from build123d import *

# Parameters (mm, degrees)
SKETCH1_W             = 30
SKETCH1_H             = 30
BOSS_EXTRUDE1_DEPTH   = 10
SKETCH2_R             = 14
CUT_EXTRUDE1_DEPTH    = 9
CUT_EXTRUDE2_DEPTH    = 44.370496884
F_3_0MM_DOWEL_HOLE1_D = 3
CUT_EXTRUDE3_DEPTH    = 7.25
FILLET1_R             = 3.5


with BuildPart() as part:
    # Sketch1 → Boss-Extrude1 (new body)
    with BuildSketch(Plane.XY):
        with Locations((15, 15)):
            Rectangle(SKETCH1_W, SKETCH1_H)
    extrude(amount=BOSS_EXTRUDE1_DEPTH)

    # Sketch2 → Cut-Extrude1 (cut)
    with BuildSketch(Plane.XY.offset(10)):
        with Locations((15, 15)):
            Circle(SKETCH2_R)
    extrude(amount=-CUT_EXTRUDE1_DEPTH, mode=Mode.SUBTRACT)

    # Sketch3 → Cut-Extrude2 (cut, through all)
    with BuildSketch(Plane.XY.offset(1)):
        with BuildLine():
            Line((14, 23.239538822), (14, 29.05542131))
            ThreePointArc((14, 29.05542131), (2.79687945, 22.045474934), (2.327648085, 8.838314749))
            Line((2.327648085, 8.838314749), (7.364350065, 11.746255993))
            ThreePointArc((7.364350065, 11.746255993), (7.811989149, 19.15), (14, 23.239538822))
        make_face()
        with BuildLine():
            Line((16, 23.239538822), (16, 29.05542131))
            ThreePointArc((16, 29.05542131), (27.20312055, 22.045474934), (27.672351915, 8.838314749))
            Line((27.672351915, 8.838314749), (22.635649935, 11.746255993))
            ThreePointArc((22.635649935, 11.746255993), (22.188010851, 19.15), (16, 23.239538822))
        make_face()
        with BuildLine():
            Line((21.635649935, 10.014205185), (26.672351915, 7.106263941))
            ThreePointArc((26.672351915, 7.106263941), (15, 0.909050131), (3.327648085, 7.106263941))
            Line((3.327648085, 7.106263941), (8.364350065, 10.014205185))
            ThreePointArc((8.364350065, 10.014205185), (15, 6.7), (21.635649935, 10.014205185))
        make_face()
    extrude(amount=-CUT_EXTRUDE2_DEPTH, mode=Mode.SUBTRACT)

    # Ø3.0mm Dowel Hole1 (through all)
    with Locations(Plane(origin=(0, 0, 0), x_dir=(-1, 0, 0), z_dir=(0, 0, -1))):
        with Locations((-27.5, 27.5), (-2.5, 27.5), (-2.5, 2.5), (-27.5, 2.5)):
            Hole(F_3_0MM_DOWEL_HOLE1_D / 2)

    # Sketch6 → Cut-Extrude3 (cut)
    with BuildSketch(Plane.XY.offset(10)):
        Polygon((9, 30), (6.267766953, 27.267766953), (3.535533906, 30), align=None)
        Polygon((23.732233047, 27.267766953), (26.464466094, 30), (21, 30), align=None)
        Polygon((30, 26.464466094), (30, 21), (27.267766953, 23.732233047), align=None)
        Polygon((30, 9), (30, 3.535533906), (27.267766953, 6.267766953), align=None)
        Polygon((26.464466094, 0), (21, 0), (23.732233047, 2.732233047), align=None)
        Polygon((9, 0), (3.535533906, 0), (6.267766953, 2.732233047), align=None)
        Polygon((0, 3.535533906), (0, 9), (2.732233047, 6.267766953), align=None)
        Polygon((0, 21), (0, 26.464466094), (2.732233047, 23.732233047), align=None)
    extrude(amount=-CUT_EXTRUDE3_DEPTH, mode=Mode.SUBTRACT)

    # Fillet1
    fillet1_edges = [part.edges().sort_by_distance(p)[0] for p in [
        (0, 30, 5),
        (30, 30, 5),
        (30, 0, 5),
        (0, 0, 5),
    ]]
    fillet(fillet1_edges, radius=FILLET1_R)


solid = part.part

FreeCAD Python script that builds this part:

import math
import FreeCAD as App
import Part
import Sketcher

V = App.Vector
Q = App.Units.Quantity


def edges_at(feature, points):
    """Names of the edges that pass closest to the given points."""
    edges = feature.Shape.Edges
    near = lambda p: min(range(len(edges)), key=lambda i: edges[i].distToShape(Part.Vertex(*p))[0])
    return sorted({f"Edge{near(p) + 1}" for p in points})

doc = App.newDocument("Part")
body = doc.addObject("PartDesign::Body", "Body")

# Sketch on XY plane
sketch1 = doc.addObject("Sketcher::SketchObject", "Sketch")
body.addObject(sketch1)
sketch1.AttachmentSupport = (doc.XY_Plane, [""])
sketch1.MapMode = "FlatFace"
sketch1.addGeometry([
    Part.LineSegment(V(0, 30, 0), V(0, 0, 0)),
    Part.LineSegment(V(0, 0, 0), V(30, 0, 0)),
    Part.LineSegment(V(30, 0, 0), V(30, 30, 0)),
    Part.LineSegment(V(30, 30, 0), V(0, 30, 0)),
], False)
sketch1.addConstraint([
    Sketcher.Constraint("Coincident", 0, 2, 1, 1),
    Sketcher.Constraint("Coincident", 1, 2, 2, 1),
    Sketcher.Constraint("Coincident", 2, 2, 3, 1),
    Sketcher.Constraint("Coincident", 3, 2, 0, 1),
    Sketcher.Constraint("Vertical", 0),
    Sketcher.Constraint("Horizontal", 1),
    Sketcher.Constraint("Vertical", 2),
    Sketcher.Constraint("Horizontal", 3),
    Sketcher.Constraint("Coincident", 0, 2, -1, 1),
    Sketcher.Constraint("Equal", 3, 0),
    Sketcher.Constraint("DistanceX", 1, 1, 1, 2, Q("30 mm")),
])
pad1 = doc.addObject("PartDesign::Pad", "Pad")
body.addObject(pad1)
pad1.Profile = sketch1
pad1.Length = 10

# Sketch on XY plane
sketch2 = doc.addObject("Sketcher::SketchObject", "Sketch001")
body.addObject(sketch2)
sketch2.AttachmentSupport = (doc.XY_Plane, [""])
sketch2.MapMode = "FlatFace"
sketch2.AttachmentOffset = App.Placement(V(0, 0, 10), App.Rotation())
sketch2.addGeometry(Part.Circle(V(15, 15, 0), V(0, 0, 1), 14), False)
sketch2.addConstraint([
    Sketcher.Constraint("Diameter", 0, Q("28 mm")),
    Sketcher.Constraint("DistanceX", -1, 1, 0, 3, Q("15 mm")),
    Sketcher.Constraint("DistanceY", -1, 1, 0, 3, Q("15 mm")),
])
pocket1 = doc.addObject("PartDesign::Pocket", "Pocket")
body.addObject(pocket1)
pocket1.Profile = sketch2
pocket1.Length = 9

# Sketch on XY plane
sketch3 = doc.addObject("Sketcher::SketchObject", "Sketch002")
body.addObject(sketch3)
sketch3.AttachmentSupport = (doc.XY_Plane, [""])
sketch3.MapMode = "FlatFace"
sketch3.AttachmentOffset = App.Placement(V(0, 0, 1), App.Rotation())
sketch3.addGeometry([
    Part.LineSegment(V(14, 23, 0), V(14, 29, 0)),  # 0
    Part.ArcOfCircle(Part.Circle(V(15, 15, 0), V(0, 0, 1), 14), math.radians(94), math.radians(206)),  # 1
    Part.LineSegment(V(2, 9, 0), V(7, 12, 0)),  # 2
    Part.ArcOfCircle(Part.Circle(V(15, 15, 0), V(0, 0, 1), 8), math.radians(97), math.radians(203)),  # 3
    Part.LineSegment(V(16, 29, 0), V(16, 23, 0)),  # 4
    Part.ArcOfCircle(Part.Circle(V(15, 15, 0), V(0, 0, 1), 8), math.radians(-23), math.radians(83)),  # 5
    Part.LineSegment(V(23, 12, 0), V(28, 9, 0)),  # 6
    Part.ArcOfCircle(Part.Circle(V(15, 15, 0), V(0, 0, 1), 14), math.radians(-26), math.radians(86)),  # 7
    Part.LineSegment(V(27, 7, 0), V(22, 10, 0)),  # 8
    Part.ArcOfCircle(Part.Circle(V(15, 15, 0), V(0, 0, 1), 8), math.radians(-143), math.radians(-37)),  # 9
    Part.LineSegment(V(8, 10, 0), V(3, 7, 0)),  # 10
    Part.ArcOfCircle(Part.Circle(V(15, 15, 0), V(0, 0, 1), 14), math.radians(-146), math.radians(-34)),  # 11
], False)
sketch3.addConstraint([
    Sketcher.Constraint("Coincident", 0, 2, 1, 1),
    Sketcher.Constraint("Coincident", 1, 2, 2, 1),
    Sketcher.Constraint("Coincident", 2, 2, 3, 2),
    Sketcher.Constraint("Coincident", 3, 1, 0, 1),
    Sketcher.Constraint("Coincident", 4, 2, 5, 2),
    Sketcher.Constraint("Coincident", 5, 1, 6, 1),
    Sketcher.Constraint("Coincident", 6, 2, 7, 1),
    Sketcher.Constraint("Coincident", 7, 2, 4, 1),
    Sketcher.Constraint("Coincident", 8, 2, 9, 2),
    Sketcher.Constraint("Coincident", 9, 1, 10, 1),
    Sketcher.Constraint("Coincident", 10, 2, 11, 1),
    Sketcher.Constraint("Coincident", 11, 2, 8, 1),
    Sketcher.Constraint("Vertical", 0),
    Sketcher.Constraint("Vertical", 4),
    Sketcher.Constraint("Coincident", 3, 3, 1, 3),
    Sketcher.Constraint("Coincident", 5, 3, 1, 3),
    Sketcher.Constraint("Coincident", 7, 3, 1, 3),
    Sketcher.Constraint("Coincident", 9, 3, 1, 3),
    Sketcher.Constraint("Coincident", 11, 3, 1, 3),
    Sketcher.Constraint("Equal", 3, 5),
    Sketcher.Constraint("Equal", 1, 7),
    Sketcher.Constraint("Equal", 5, 9),
    Sketcher.Constraint("Equal", 7, 11),
    Sketcher.Constraint("Parallel", 6, 8),
    Sketcher.Constraint("Parallel", 2, 10),
    Sketcher.Constraint("Horizontal", 3, 1, 4, 2),
    Sketcher.Constraint("Horizontal", 2, 2, 5, 1),
    Sketcher.Constraint("Horizontal", 1, 2, 6, 2),
    Sketcher.Constraint("Horizontal", 8, 2, 9, 1),
    Sketcher.Constraint("Equal", 6, 8),
    Sketcher.Constraint("Radius", 3, Q("8.3 mm")),
    Sketcher.Constraint("Angle", 2, Q("30 deg")),
    Sketcher.Constraint("DistanceX", -1, 1, 1, 3, Q("15 mm")),
    Sketcher.Constraint("DistanceY", -1, 1, 1, 3, Q("15 mm")),
    Sketcher.Constraint("DistanceX", -1, 1, 0, 2, Q("14 mm")),
    Sketcher.Constraint("DistanceX", 8, 2, 5, 1, Q("1 mm")),
    Sketcher.Constraint("Radius", 1, Q("14.09095 mm")),
])
pocket2 = doc.addObject("PartDesign::Pocket", "Pocket001")
body.addObject(pocket2)
pocket2.Profile = sketch3
pocket2.Type = "ThroughAll"

# Sketch on XY plane
sketch4 = doc.addObject("Sketcher::SketchObject", "Sketch003")
body.addObject(sketch4)
sketch4.AttachmentSupport = (doc.XY_Plane, [""])
sketch4.MapMode = "FlatFace"
sketch4.addGeometry([
    Part.Circle(V(27.5, 27.5, 0), V(0, 0, 1), 1.5),
    Part.Circle(V(2.5, 27.5, 0), V(0, 0, 1), 1.5),
    Part.Circle(V(2.5, 2.5, 0), V(0, 0, 1), 1.5),
    Part.Circle(V(27.5, 2.5, 0), V(0, 0, 1), 1.5),
], False)
sketch4.addConstraint([
    Sketcher.Constraint("Equal", 0, 1),
    Sketcher.Constraint("Equal", 1, 2),
    Sketcher.Constraint("Equal", 2, 3),
    Sketcher.Constraint("Horizontal", 0, 3, 1, 3),
    Sketcher.Constraint("Horizontal", 2, 3, 3, 3),
    Sketcher.Constraint("Vertical", 1, 3, 2, 3),
    Sketcher.Constraint("Vertical", 0, 3, 3, 3),
    Sketcher.Constraint("Diameter", 0, Q("3 mm")),
    Sketcher.Constraint("DistanceX", 1, 3, 0, 3, Q("25 mm")),
    Sketcher.Constraint("DistanceY", 2, 3, 1, 3, Q("25 mm")),
    Sketcher.Constraint("DistanceX", -1, 1, 0, 3, Q("27.5 mm")),
    Sketcher.Constraint("DistanceY", -1, 1, 0, 3, Q("27.5 mm")),
])
doc.recompute()
hole = doc.addObject("PartDesign::Hole", "Hole")
body.addObject(hole)
hole.Profile = sketch4
hole.ThreadType = "None"
hole.Diameter = 3
hole.DepthType = "ThroughAll"
hole.Reversed = True

# Sketch on XY plane
sketch5 = doc.addObject("Sketcher::SketchObject", "Sketch004")
body.addObject(sketch5)
sketch5.AttachmentSupport = (doc.XY_Plane, [""])
sketch5.MapMode = "FlatFace"
sketch5.AttachmentOffset = App.Placement(V(0, 0, 10), App.Rotation())
sketch5.addGeometry([
    Part.LineSegment(V(6.3, 27.3, 0), V(9, 30, 0)),  # 0
    Part.LineSegment(V(9, 30, 0), V(3.5, 30, 0)),  # 1
    Part.LineSegment(V(3.5, 30, 0), V(6.3, 27.3, 0)),  # 2
    Part.LineSegment(V(23.7, 27.3, 0), V(26.5, 30, 0)),  # 3
    Part.LineSegment(V(26.5, 30, 0), V(21, 30, 0)),  # 4
    Part.LineSegment(V(21, 30, 0), V(23.7, 27.3, 0)),  # 5
    Part.LineSegment(V(30, 21, 0), V(30, 26.5, 0)),  # 6
    Part.LineSegment(V(30, 26.5, 0), V(27.3, 23.7, 0)),  # 7
    Part.LineSegment(V(27.3, 23.7, 0), V(30, 21, 0)),  # 8
    Part.LineSegment(V(30, 3.5, 0), V(30, 9, 0)),  # 9
    Part.LineSegment(V(30, 9, 0), V(27.3, 6.3, 0)),  # 10
    Part.LineSegment(V(27.3, 6.3, 0), V(30, 3.5, 0)),  # 11
    Part.LineSegment(V(21, 0, 0), V(26.5, 0, 0)),  # 12
    Part.LineSegment(V(26.5, 0, 0), V(23.7, 2.7, 0)),  # 13
    Part.LineSegment(V(23.7, 2.7, 0), V(21, 0, 0)),  # 14
    Part.LineSegment(V(3.5, 0, 0), V(9, 0, 0)),  # 15
    Part.LineSegment(V(9, 0, 0), V(6.3, 2.7, 0)),  # 16
    Part.LineSegment(V(6.3, 2.7, 0), V(3.5, 0, 0)),  # 17
    Part.LineSegment(V(0, 9, 0), V(0, 3.5, 0)),  # 18
    Part.LineSegment(V(0, 3.5, 0), V(2.7, 6.3, 0)),  # 19
    Part.LineSegment(V(2.7, 6.3, 0), V(0, 9, 0)),  # 20
    Part.LineSegment(V(0, 26.5, 0), V(0, 21, 0)),  # 21
    Part.LineSegment(V(0, 21, 0), V(2.7, 23.7, 0)),  # 22
    Part.LineSegment(V(2.7, 23.7, 0), V(0, 26.5, 0)),  # 23
], False)
sketch5.addConstraint([
    Sketcher.Constraint("Coincident", 0, 2, 1, 1),
    Sketcher.Constraint("Coincident", 1, 2, 2, 1),
    Sketcher.Constraint("Coincident", 2, 2, 0, 1),
    Sketcher.Constraint("Coincident", 3, 2, 4, 1),
    Sketcher.Constraint("Coincident", 4, 2, 5, 1),
    Sketcher.Constraint("Coincident", 5, 2, 3, 1),
    Sketcher.Constraint("Coincident", 6, 2, 7, 1),
    Sketcher.Constraint("Coincident", 7, 2, 8, 1),
    Sketcher.Constraint("Coincident", 8, 2, 6, 1),
    Sketcher.Constraint("Coincident", 9, 2, 10, 1),
    Sketcher.Constraint("Coincident", 10, 2, 11, 1),
    Sketcher.Constraint("Coincident", 11, 2, 9, 1),
    Sketcher.Constraint("Coincident", 12, 2, 13, 1),
    Sketcher.Constraint("Coincident", 13, 2, 14, 1),
    Sketcher.Constraint("Coincident", 14, 2, 12, 1),
    Sketcher.Constraint("Coincident", 15, 2, 16, 1),
    Sketcher.Constraint("Coincident", 16, 2, 17, 1),
    Sketcher.Constraint("Coincident", 17, 2, 15, 1),
    Sketcher.Constraint("Coincident", 18, 2, 19, 1),
    Sketcher.Constraint("Coincident", 19, 2, 20, 1),
    Sketcher.Constraint("Coincident", 20, 2, 18, 1),
    Sketcher.Constraint("Coincident", 21, 2, 22, 1),
    Sketcher.Constraint("Coincident", 22, 2, 23, 1),
    Sketcher.Constraint("Coincident", 23, 2, 21, 1),
    Sketcher.Constraint("Horizontal", 1),
    Sketcher.Constraint("Horizontal", 4),
    Sketcher.Constraint("Vertical", 6),
    Sketcher.Constraint("Vertical", 9),
    Sketcher.Constraint("Horizontal", 12),
    Sketcher.Constraint("Horizontal", 15),
    Sketcher.Constraint("Vertical", 18),
    Sketcher.Constraint("Vertical", 21),
    Sketcher.Constraint("PointOnObject", 12, 2, -1),
    Sketcher.Constraint("PointOnObject", 15, 2, -1),
    Sketcher.Constraint("PointOnObject", 18, 2, -2),
    Sketcher.Constraint("PointOnObject", 21, 2, -2),
    Sketcher.Constraint("Perpendicular", 0, 2),
    Sketcher.Constraint("Perpendicular", 2, 3),
    Sketcher.Constraint("Perpendicular", 3, 5),
    Sketcher.Constraint("Perpendicular", 5, 7),
    Sketcher.Constraint("Perpendicular", 7, 8),
    Sketcher.Constraint("Perpendicular", 8, 10),
    Sketcher.Constraint("Perpendicular", 10, 11),
    Sketcher.Constraint("Parallel", 11, 13),
    Sketcher.Constraint("Perpendicular", 13, 14),
    Sketcher.Constraint("Perpendicular", 14, 16),
    Sketcher.Constraint("Perpendicular", 16, 17),
    Sketcher.Constraint("Parallel", 17, 19),
    Sketcher.Constraint("Perpendicular", 19, 20),
    Sketcher.Constraint("Perpendicular", 20, 22),
    Sketcher.Constraint("Perpendicular", 22, 23),
    Sketcher.Constraint("Horizontal", 1, 2, 3, 2),
    Sketcher.Constraint("Horizontal", 2, 2, 5, 2),
    Sketcher.Constraint("Horizontal", 13, 2, 16, 2),
    Sketcher.Constraint("Horizontal", 11, 2, 18, 2),
    Sketcher.Constraint("Horizontal", 10, 2, 19, 2),
    Sketcher.Constraint("Horizontal", 9, 2, 20, 2),
    Sketcher.Constraint("Horizontal", 8, 2, 21, 2),
    Sketcher.Constraint("Horizontal", 7, 2, 22, 2),
    Sketcher.Constraint("Vertical", 8, 2, 9, 2),
    Sketcher.Constraint("Vertical", 7, 2, 10, 2),
    Sketcher.Constraint("Vertical", 3, 2, 12, 2),
    Sketcher.Constraint("Vertical", 5, 2, 13, 2),
    Sketcher.Constraint("Vertical", 0, 2, 15, 2),
    Sketcher.Constraint("Equal", 15, 6),
    Sketcher.Constraint("DistanceX", -1, 1, 0, 2, Q("9 mm")),
    Sketcher.Constraint("DistanceY", -1, 1, 0, 2, Q("30 mm")),
    Sketcher.Constraint("DistanceX", -1, 1, 4, 2, Q("21 mm")),
    Sketcher.Constraint("DistanceX", -1, 1, 6, 2, Q("30 mm")),
    Sketcher.Constraint("DistanceY", -1, 1, 8, 2, Q("21 mm")),
    Sketcher.Constraint("DistanceY", -1, 1, 9, 2, Q("9 mm")),
    Sketcher.Constraint("DistanceX", 2, 2, 3, 2, Q("20.196699 mm")),
])
pocket3 = doc.addObject("PartDesign::Pocket", "Pocket002")
body.addObject(pocket3)
pocket3.Profile = sketch5
pocket3.Length = 7.25
doc.recompute()

fillet = doc.addObject("PartDesign::Fillet", "Fillet")
body.addObject(fillet)
fillet.Base = (pocket3, edges_at(pocket3, [
    (0, 30, 5),
    (30, 30, 5),
    (30, 0, 5),
    (0, 0, 5),
]))
fillet.Radius = 3.5

doc.recompute()
